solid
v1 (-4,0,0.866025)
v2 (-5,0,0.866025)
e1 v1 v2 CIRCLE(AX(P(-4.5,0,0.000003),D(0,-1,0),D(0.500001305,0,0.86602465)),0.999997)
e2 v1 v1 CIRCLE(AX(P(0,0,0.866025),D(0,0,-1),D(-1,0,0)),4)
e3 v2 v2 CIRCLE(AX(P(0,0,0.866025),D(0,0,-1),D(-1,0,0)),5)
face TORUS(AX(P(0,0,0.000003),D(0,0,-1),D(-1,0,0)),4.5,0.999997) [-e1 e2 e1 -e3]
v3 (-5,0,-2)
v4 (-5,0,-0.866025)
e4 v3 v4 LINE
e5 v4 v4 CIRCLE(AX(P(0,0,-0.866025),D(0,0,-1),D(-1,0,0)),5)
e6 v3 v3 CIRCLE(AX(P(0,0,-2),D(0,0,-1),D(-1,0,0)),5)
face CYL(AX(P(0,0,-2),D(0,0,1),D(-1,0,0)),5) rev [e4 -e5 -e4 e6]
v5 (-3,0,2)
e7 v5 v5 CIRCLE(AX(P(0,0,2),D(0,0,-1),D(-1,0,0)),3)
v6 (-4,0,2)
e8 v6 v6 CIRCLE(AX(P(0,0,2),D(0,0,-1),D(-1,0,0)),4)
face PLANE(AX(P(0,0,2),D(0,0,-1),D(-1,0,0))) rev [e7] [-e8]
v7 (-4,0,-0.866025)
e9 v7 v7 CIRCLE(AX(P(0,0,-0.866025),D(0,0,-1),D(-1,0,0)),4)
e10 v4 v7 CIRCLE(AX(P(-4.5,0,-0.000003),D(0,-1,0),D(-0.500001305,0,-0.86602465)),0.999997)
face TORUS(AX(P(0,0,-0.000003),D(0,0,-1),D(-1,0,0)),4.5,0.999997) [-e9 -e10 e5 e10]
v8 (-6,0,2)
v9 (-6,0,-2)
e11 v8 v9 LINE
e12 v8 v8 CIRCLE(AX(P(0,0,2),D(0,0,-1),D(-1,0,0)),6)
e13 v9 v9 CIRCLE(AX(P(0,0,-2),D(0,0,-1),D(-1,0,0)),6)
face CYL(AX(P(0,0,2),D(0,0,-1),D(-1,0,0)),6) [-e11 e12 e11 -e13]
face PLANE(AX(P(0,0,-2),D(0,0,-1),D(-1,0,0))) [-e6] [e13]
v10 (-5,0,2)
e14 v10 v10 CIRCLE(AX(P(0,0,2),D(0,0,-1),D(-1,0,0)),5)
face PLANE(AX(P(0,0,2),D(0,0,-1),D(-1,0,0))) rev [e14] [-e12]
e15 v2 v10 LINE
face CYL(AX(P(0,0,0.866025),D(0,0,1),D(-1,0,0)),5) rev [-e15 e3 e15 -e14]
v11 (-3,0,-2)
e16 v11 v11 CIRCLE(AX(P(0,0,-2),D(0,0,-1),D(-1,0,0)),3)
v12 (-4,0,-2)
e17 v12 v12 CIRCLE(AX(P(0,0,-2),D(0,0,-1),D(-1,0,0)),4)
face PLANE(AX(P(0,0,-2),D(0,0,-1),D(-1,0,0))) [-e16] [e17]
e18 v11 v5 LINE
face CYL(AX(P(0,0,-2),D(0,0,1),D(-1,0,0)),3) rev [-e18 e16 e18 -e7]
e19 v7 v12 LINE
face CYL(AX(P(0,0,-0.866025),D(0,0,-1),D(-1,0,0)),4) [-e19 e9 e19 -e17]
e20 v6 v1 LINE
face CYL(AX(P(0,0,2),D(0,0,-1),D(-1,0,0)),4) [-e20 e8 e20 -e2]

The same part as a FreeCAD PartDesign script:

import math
import FreeCAD as App
import Part
import Sketcher

V = App.Vector
Q = App.Units.Quantity

doc = App.newDocument("Part")
body = doc.addObject("PartDesign::Body", "Body")

sketch1 = doc.addObject("Sketcher::SketchObject", "Sketch")
body.addObject(sketch1)
sketch1.AttachmentSupport = (doc.XZ_Plane, [""])
sketch1.MapMode = "FlatFace"
sketch1.addGeometry([
    Part.LineSegment(V(-4, -2, 0), V(-3, -2, 0)),
    Part.LineSegment(V(-3, -2, 0), V(-3, 2, 0)),
    Part.LineSegment(V(-3, 2, 0), V(-4, 2, 0)),
    Part.LineSegment(V(-4, 2, 0), V(-4, 0.9, 0)),
    Part.ArcOfCircle(Part.Circle(V(-4.5, 0, 0), V(0, 0, 1), 1), math.radians(60), math.radians(120)),
    Part.LineSegment(V(-5, 0.9, 0), V(-5, 2, 0)),
    Part.LineSegment(V(-5, 2, 0), V(-6, 2, 0)),
    Part.LineSegment(V(-6, 2, 0), V(-6, -2, 0)),
    Part.LineSegment(V(-6, -2, 0), V(-5, -2, 0)),
    Part.LineSegment(V(-5, -2, 0), V(-5, -0.9, 0)),
    Part.ArcOfCircle(Part.Circle(V(-4.5, 0, 0), V(0, 0, 1), 1), math.radians(-120), math.radians(-60)),
    Part.LineSegment(V(-4, -0.9, 0), V(-4, -2, 0)),
], False)
sketch1.addConstraint([
    Sketcher.Constraint("Coincident", 0, 2, 1, 1),
    Sketcher.Constraint("Coincident", 1, 2, 2, 1),
    Sketcher.Constraint("Coincident", 2, 2, 3, 1),
    Sketcher.Constraint("Coincident", 3, 2, 4, 1),
    Sketcher.Constraint("Coincident", 4, 2, 5, 1),
    Sketcher.Constraint("Coincident", 5, 2, 6, 1),
    Sketcher.Constraint("Coincident", 6, 2, 7, 1),
    Sketcher.Constraint("Coincident", 7, 2, 8, 1),
    Sketcher.Constraint("Coincident", 8, 2, 9, 1),
    Sketcher.Constraint("Coincident", 9, 2, 10, 1),
    Sketcher.Constraint("Coincident", 10, 2, 11, 1),
    Sketcher.Constraint("Coincident", 11, 2, 0, 1),
    Sketcher.Constraint("Horizontal", 0),
    Sketcher.Constraint("Vertical", 1),
    Sketcher.Constraint("Horizontal", 2),
    Sketcher.Constraint("Vertical", 3),
    Sketcher.Constraint("Vertical", 5),
    Sketcher.Constraint("Horizontal", 6),
    Sketcher.Constraint("Vertical", 7),
    Sketcher.Constraint("Horizontal", 8),
    Sketcher.Constraint("Vertical", 9),
    Sketcher.Constraint("Vertical", 11),
    Sketcher.Constraint("Coincident", 10, 3, 4, 3),
    Sketcher.Constraint("Equal", 4, 10),
    Sketcher.Constraint("Symmetric", 5, 2, 8, 2, -1),
    Sketcher.Constraint("Symmetric", 3, 2, 10, 2, -1),
    Sketcher.Constraint("Horizontal", 3, 2, 4, 2),
    Sketcher.Constraint("Horizontal", 2, 2, 5, 2),
    Sketcher.Constraint("Horizontal", 0, 2, 7, 2),
    Sketcher.Constraint("Equal", 2, 6),
    Sketcher.Constraint("DistanceX", 0, 1, 0, 2, Q("1 mm")),
    Sketcher.Constraint("DistanceY", 1, 1, 1, 2, Q("4 mm")),
    Sketcher.Constraint("DistanceX", 0, 2, -1, 1, Q("3 mm")),
    Sketcher.Constraint("DistanceX", 4, 2, -1, 1, Q("5 mm")),
    Sketcher.Constraint("Radius", 4, Q("0.999997 mm")),
])
revolution = doc.addObject("PartDesign::Revolution", "Revolution")
body.addObject(revolution)
revolution.Profile = sketch1
revolution.ReferenceAxis = (sketch1, ["V_Axis"])
revolution.Angle = 360

doc.recompute()
